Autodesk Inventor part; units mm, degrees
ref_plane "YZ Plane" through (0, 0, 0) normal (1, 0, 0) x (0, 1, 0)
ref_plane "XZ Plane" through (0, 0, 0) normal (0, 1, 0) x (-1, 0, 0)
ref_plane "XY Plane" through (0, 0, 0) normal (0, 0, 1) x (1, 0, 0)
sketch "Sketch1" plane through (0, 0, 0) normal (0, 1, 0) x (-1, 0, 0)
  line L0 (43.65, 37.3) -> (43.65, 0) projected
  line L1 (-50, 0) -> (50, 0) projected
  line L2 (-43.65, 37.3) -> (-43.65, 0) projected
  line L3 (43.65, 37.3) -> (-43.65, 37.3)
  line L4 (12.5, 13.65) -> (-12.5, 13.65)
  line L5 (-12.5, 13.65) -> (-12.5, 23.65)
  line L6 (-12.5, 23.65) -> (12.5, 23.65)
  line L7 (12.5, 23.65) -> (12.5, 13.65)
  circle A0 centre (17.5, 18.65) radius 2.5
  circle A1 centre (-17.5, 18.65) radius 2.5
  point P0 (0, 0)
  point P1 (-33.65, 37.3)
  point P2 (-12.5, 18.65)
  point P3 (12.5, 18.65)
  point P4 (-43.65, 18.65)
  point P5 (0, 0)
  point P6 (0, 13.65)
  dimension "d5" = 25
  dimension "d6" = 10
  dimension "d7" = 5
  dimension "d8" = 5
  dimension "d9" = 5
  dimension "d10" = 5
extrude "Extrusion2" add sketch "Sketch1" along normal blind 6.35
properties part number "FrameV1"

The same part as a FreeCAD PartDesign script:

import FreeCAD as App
import Part
import Sketcher

V = App.Vector
Q = App.Units.Quantity

doc = App.newDocument("Part")
body = doc.addObject("PartDesign::Body", "Body")

# Sketch on XZ plane
sketch1 = body.newObject("Sketcher::SketchObject", "Sketch")
sketch1.AttachmentSupport = (doc.getObject("XZ_Plane"), [""])
sketch1.MapMode = "FlatFace"
sketch1.addGeometry([
    Part.LineSegment(V(-43.65, 0, 0), V(-43.65, 37.3, 0)),  # 0
    Part.LineSegment(V(-43.65, 37.3, 0), V(43.65, 37.3, 0)),  # 1
    Part.LineSegment(V(43.65, 37.3, 0), V(43.65, 0, 0)),  # 2
    Part.LineSegment(V(43.65, 0, 0), V(-43.65, 0, 0)),  # 3
    Part.Circle(V(17.5, 18.65, 0), V(0, 0, 1), 2.5),  # 4
    Part.LineSegment(V(-12.5, 23.65, 0), V(-12.5, 13.65, 0)),  # 5
    Part.LineSegment(V(-12.5, 13.65, 0), V(12.5, 13.65, 0)),  # 6
    Part.LineSegment(V(12.5, 13.65, 0), V(12.5, 23.65, 0)),  # 7
    Part.LineSegment(V(12.5, 23.65, 0), V(-12.5, 23.65, 0)),  # 8
    Part.Circle(V(-17.5, 18.65, 0), V(0, 0, 1), 2.5),  # 9
], False)
sketch1.addConstraint([
    Sketcher.Constraint("Coincident", 0, 2, 1, 1),
    Sketcher.Constraint("Coincident", 1, 2, 2, 1),
    Sketcher.Constraint("Coincident", 2, 2, 3, 1),
    Sketcher.Constraint("Coincident", 3, 2, 0, 1),
    Sketcher.Constraint("Coincident", 5, 2, 6, 1),
    Sketcher.Constraint("Coincident", 6, 2, 7, 1),
    Sketcher.Constraint("Coincident", 7, 2, 8, 1),
    Sketcher.Constraint("Coincident", 8, 2, 5, 1),
    Sketcher.Constraint("Vertical", 0),
    Sketcher.Constraint("Horizontal", 1),
    Sketcher.Constraint("Vertical", 2),
    Sketcher.Constraint("Horizontal", 3),
    Sketcher.Constraint("Vertical", 5),
    Sketcher.Constraint("Horizontal", 6),
    Sketcher.Constraint("Vertical", 7),
    Sketcher.Constraint("Horizontal", 8),
    Sketcher.Constraint("Equal", 4, 9),
    Sketcher.Constraint("Symmetric", 2, 2, 3, 2, -1, 1),
    Sketcher.Constraint("Symmetric", 4, 3, 9, 3, -2),
    Sketcher.Constraint("Diameter", 4, Q("5 mm")),
    Sketcher.Constraint("DistanceX", 6, 1, 6, 2, Q("25 mm")),
    Sketcher.Constraint("DistanceY", 5, 2, 5, 1, Q("10 mm")),
    Sketcher.Constraint("DistanceX", 9, 3, 5, 2, Q("5 mm")),
    Sketcher.Constraint("DistanceY", 5, 2, 9, 3, Q("5 mm")),
    Sketcher.Constraint("DistanceX", 6, 2, 4, 3, Q("5 mm")),
    Sketcher.Constraint("DistanceX", 1, 1, 1, 2, Q("87.3 mm")),
    Sketcher.Constraint("DistanceY", 0, 1, 0, 2, Q("37.3 mm")),
    Sketcher.Constraint("DistanceY", -1, 1, 4, 3, Q("18.65 mm")),
])
pad1 = body.newObject("PartDesign::Pad", "Pad")
pad1.Profile = sketch1
pad1.Length = 6.35
pad1.Reversed = True

doc.recompute()
